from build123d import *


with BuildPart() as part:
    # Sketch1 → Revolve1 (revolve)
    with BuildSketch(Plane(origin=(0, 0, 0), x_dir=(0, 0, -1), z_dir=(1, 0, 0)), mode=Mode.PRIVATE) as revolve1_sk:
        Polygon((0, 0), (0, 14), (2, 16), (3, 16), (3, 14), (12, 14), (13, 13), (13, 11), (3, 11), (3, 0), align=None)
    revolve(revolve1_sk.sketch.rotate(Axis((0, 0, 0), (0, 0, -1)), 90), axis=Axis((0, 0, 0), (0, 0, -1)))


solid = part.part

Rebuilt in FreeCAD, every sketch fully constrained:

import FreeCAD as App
import Part
import Sketcher
from FreeCAD import Vector


def add_polygon(sketch, points):
    """Adds a closed chain of lines whose ends are joined by coincident constraints."""
    first, n = sketch.GeometryCount, len(points)
    for a, b in zip(points, points[1:] + points[:1]):
        sketch.addGeometry(Part.LineSegment(App.Vector(*a, 0), App.Vector(*b, 0)), False)
    for i in range(n):
        sketch.addConstraint(Sketcher.Constraint("Coincident", first + i, 2, first + (i + 1) % n, 1))

doc = App.newDocument("Part")
body = doc.addObject("PartDesign::Body", "Body")

sketch1 = body.newObject("Sketcher::SketchObject", "Sketch")
sketch1.AttachmentSupport = (doc.getObject("YZ_Plane"), [""])
sketch1.MapMode = "FlatFace"
add_polygon(sketch1, [(14, 0), (0, 0), (0, -3), (11, -3), (11, -13), (13, -13), (14, -12), (14, -3), (16, -3), (16, -2)])
sketch1.addConstraint([
    Sketcher.Constraint("Horizontal", 0),
    Sketcher.Constraint("Vertical", 1),
    Sketcher.Constraint("Horizontal", 2),
    Sketcher.Constraint("Vertical", 3),
    Sketcher.Constraint("Horizontal", 4),
    Sketcher.Constraint("Vertical", 6),
    Sketcher.Constraint("Horizontal", 7),
    Sketcher.Constraint("Vertical", 8),
    Sketcher.Constraint("Coincident", 0, 2, -1, 1),
    Sketcher.Constraint("Perpendicular", 5, 9),
    Sketcher.Constraint("Horizontal", 2, 2, 6, 2),
    Sketcher.Constraint("Vertical", 6, 2, 9, 2),
    Sketcher.Constraint("Equal", 4, 7),
    Sketcher.Constraint("DistanceX", 0, 2, 0, 1, 14.0),
    Sketcher.Constraint("DistanceX", 2, 1, 2, 2, 11.0),
    Sketcher.Constraint("DistanceX", 4, 1, 4, 2, 2.0),
    Sketcher.Constraint("DistanceY", 1, 2, 1, 1, 3.0),
    Sketcher.Constraint("DistanceY", 3, 2, 3, 1, 10.0),
    Sketcher.Constraint("DistanceY", 6, 1, 6, 2, 9.0),
])
revolution = body.newObject("PartDesign::Revolution", "Revolution")
revolution.Profile = sketch1
revolution.ReferenceAxis = (sketch1, ["V_Axis"])
revolution.Angle = 360

doc.recompute()
